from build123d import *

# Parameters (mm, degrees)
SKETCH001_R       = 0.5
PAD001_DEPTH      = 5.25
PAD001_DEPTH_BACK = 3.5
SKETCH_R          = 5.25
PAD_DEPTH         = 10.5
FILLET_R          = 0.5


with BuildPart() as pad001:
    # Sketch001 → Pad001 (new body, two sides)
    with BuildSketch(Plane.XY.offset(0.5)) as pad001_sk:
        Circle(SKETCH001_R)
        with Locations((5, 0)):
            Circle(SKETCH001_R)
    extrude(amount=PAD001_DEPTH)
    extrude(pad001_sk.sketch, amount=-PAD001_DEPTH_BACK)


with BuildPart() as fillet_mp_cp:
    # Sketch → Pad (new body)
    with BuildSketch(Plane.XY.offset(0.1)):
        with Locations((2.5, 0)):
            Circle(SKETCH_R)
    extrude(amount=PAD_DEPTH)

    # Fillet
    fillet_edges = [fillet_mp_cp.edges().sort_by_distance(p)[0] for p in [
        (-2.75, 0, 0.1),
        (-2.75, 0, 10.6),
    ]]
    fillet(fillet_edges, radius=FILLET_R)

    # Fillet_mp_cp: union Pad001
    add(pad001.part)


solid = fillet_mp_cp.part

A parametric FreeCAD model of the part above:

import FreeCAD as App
import Part
import Sketcher
from FreeCAD import Vector


def edges_at(feature, points):
    """Names of the edges that pass closest to the given points."""
    edges = feature.Shape.Edges
    near = lambda p: min(range(len(edges)), key=lambda i: edges[i].distToShape(Part.Vertex(*p))[0])
    return sorted({f"Edge{near(p) + 1}" for p in points})

doc = App.newDocument("Part")
body = doc.addObject("PartDesign::Body", "Body")
body.AllowCompound = True

# Sketch on XY plane
sketch1 = body.newObject("Sketcher::SketchObject", "Sketch")
sketch1.AttachmentSupport = (doc.getObject("XY_Plane"), [""])
sketch1.MapMode = "FlatFace"
sketch1.AttachmentOffset = App.Placement(Vector(0, 0, 0.5), App.Rotation())
sketch1.addGeometry([
    Part.Circle(Vector(0, 0, 0), Vector(0, 0, 1), 0.5),
    Part.Circle(Vector(5, 0, 0), Vector(0, 0, 1), 0.5),
], False)
sketch1.addConstraint([
    Sketcher.Constraint("Coincident", 0, 3, -1, 1),
    Sketcher.Constraint("Equal", 0, 1),
    Sketcher.Constraint("PointOnObject", 1, 3, -1),
    Sketcher.Constraint("Diameter", 0, 1.0),
    Sketcher.Constraint("DistanceX", -1, 1, 1, 3, 5.0),
])
pad1 = body.newObject("PartDesign::Pad", "Pad")
pad1.Profile = sketch1
pad1.Type = "TwoLengths"
pad1.Length = 5.25
pad1.Length2 = 3.5
body2 = doc.addObject("PartDesign::Body", "Body001")

# Sketch on XY plane
sketch2 = body2.newObject("Sketcher::SketchObject", "Sketch001")
sketch2.AttachmentSupport = (doc.getObject("XY_Plane001"), [""])
sketch2.MapMode = "FlatFace"
sketch2.AttachmentOffset = App.Placement(Vector(0, 0, 0.1), App.Rotation())
sketch2.addGeometry(Part.Circle(Vector(2.5, 0, 0), Vector(0, 0, 1), 5.25), False)
sketch2.addConstraint([
    Sketcher.Constraint("PointOnObject", 0, 3, -1),
    Sketcher.Constraint("Diameter", 0, 10.5),
    Sketcher.Constraint("DistanceX", -1, 1, 0, 3, 2.5),
])
pad2 = body2.newObject("PartDesign::Pad", "Pad001")
pad2.Profile = sketch2
pad2.Length = 10.5
doc.recompute()

fillet = body2.newObject("PartDesign::Fillet", "Fillet")
fillet.Base = (pad2, edges_at(pad2, [(-2.75, 0, 0.1), (-2.75, 0, 10.6)]))
fillet.Radius = 0.5
doc.recompute()

boolean = body2.newObject("PartDesign::Boolean", "Boolean")
boolean.Type = "Fuse"
boolean.addObjects([body])

doc.recompute()
